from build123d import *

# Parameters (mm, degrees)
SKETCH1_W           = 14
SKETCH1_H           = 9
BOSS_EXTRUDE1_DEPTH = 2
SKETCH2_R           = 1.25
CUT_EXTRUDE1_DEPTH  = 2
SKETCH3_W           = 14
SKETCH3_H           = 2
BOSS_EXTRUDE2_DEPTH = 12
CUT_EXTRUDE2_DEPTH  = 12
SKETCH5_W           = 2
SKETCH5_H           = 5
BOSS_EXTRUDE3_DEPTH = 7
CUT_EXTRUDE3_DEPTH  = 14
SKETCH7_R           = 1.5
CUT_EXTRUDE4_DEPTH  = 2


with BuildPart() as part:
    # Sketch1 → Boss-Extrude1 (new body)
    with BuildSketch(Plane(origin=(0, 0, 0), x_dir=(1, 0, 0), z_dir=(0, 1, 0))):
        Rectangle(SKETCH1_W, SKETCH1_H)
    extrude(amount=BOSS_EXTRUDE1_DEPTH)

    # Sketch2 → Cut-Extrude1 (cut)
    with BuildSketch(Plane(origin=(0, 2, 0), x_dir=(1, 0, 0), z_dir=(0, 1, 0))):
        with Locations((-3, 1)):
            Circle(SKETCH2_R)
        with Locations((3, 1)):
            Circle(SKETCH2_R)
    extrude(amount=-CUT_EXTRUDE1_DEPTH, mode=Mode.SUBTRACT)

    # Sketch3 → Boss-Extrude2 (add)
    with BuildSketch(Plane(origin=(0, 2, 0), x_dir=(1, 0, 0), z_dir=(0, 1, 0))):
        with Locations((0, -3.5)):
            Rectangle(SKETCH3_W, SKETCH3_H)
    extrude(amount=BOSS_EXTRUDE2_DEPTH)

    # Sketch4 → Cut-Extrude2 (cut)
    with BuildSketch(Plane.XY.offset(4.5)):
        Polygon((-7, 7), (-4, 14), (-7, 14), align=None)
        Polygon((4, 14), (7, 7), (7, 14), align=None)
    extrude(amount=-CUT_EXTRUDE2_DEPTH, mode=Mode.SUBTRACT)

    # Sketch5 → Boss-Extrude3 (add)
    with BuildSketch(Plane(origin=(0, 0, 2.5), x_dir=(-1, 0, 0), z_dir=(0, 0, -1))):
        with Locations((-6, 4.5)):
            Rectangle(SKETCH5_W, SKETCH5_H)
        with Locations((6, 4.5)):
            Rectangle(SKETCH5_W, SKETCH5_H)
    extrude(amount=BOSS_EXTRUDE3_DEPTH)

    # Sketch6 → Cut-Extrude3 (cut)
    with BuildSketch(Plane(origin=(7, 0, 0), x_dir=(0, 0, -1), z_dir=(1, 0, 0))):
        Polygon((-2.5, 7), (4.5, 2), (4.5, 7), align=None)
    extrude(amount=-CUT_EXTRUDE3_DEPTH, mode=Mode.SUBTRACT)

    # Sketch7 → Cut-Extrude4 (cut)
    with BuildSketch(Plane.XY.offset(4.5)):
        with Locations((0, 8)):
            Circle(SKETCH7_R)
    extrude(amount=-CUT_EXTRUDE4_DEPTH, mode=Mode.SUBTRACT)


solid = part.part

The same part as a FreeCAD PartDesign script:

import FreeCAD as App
import Part
import Sketcher
from FreeCAD import Vector


def add_polygon(sketch, points):
    """Adds a closed chain of lines whose ends are joined by coincident constraints."""
    first, n = sketch.GeometryCount, len(points)
    for a, b in zip(points, points[1:] + points[:1]):
        sketch.addGeometry(Part.LineSegment(App.Vector(*a, 0), App.Vector(*b, 0)), False)
    for i in range(n):
        sketch.addConstraint(Sketcher.Constraint("Coincident", first + i, 2, first + (i + 1) % n, 1))

doc = App.newDocument("Part")
body = doc.addObject("PartDesign::Body", "Body")

# Sketch on XZ plane
sketch1 = body.newObject("Sketcher::SketchObject", "Sketch")
sketch1.AttachmentSupport = (doc.getObject("XZ_Plane"), [""])
sketch1.MapMode = "FlatFace"
add_polygon(sketch1, [(-7, -4.5), (-7, 4.5), (7, 4.5), (7, -4.5)])  # lines 0-3
sketch1.addConstraint([
    Sketcher.Constraint("Vertical", 0),
    Sketcher.Constraint("Horizontal", 1),
    Sketcher.Constraint("Vertical", 2),
    Sketcher.Constraint("Horizontal", 3),
    Sketcher.Constraint("Symmetric", 0, 2, 2, 2, -1, 1),
    Sketcher.Constraint("DistanceX", 1, 1, 1, 2, 14.0),
    Sketcher.Constraint("DistanceY", 0, 1, 0, 2, 9.0),
])
pad1 = body.newObject("PartDesign::Pad", "Pad")
pad1.Profile = sketch1
pad1.Length = 2
pad1.Reversed = True

# Sketch on XZ plane
sketch2 = body.newObject("Sketcher::SketchObject", "Sketch001")
sketch2.AttachmentSupport = (doc.getObject("XZ_Plane"), [""])
sketch2.MapMode = "FlatFace"
sketch2.AttachmentOffset = App.Placement(Vector(0, 0, -2), App.Rotation())
sketch2.addGeometry([
    Part.Circle(Vector(-3, -1, 0), Vector(0, 0, 1), 1.25),
    Part.Circle(Vector(3, -1, 0), Vector(0, 0, 1), 1.25),
], False)
sketch2.addConstraint([
    Sketcher.Constraint("Equal", 0, 1),
    Sketcher.Constraint("Symmetric", 0, 3, 1, 3, -2),
    Sketcher.Constraint("Diameter", 0, 2.5),
    Sketcher.Constraint("DistanceX", 0, 3, -1, 1, 3.0),
    Sketcher.Constraint("DistanceY", 0, 3, -1, 1, 1.0),
])
pocket1 = body.newObject("PartDesign::Pocket", "Pocket")
pocket1.Profile = sketch2
pocket1.Length = 2
pocket1.Reversed = True

# Sketch on XZ plane
sketch3 = body.newObject("Sketcher::SketchObject", "Sketch002")
sketch3.AttachmentSupport = (doc.getObject("XZ_Plane"), [""])
sketch3.MapMode = "FlatFace"
sketch3.AttachmentOffset = App.Placement(Vector(0, 0, -2), App.Rotation())
add_polygon(sketch3, [(-7, 2.5), (-7, 4.5), (7, 4.5), (7, 2.5)])  # lines 0-3
sketch3.addConstraint([
    Sketcher.Constraint("Vertical", 0),
    Sketcher.Constraint("Horizontal", 1),
    Sketcher.Constraint("Vertical", 2),
    Sketcher.Constraint("Horizontal", 3),
    Sketcher.Constraint("DistanceX", 1, 1, 1, 2, 14.0),
    Sketcher.Constraint("DistanceY", 0, 1, 0, 2, 2.0),
    Sketcher.Constraint("DistanceX", 0, 2, -1, 1, 7.0),
    Sketcher.Constraint("DistanceY", -1, 1, 0, 2, 4.5),
])
pad2 = body.newObject("PartDesign::Pad", "Pad001")
pad2.Profile = sketch3
pad2.Length = 12
pad2.Reversed = True

# Sketch on XY plane
sketch4 = body.newObject("Sketcher::SketchObject", "Sketch003")
sketch4.AttachmentSupport = (doc.getObject("XY_Plane"), [""])
sketch4.MapMode = "FlatFace"
sketch4.AttachmentOffset = App.Placement(Vector(0, 0, 4.5), App.Rotation())
add_polygon(sketch4, [(-7, 7), (-4, 14), (-7, 14)])  # lines 0-2
add_polygon(sketch4, [(4, 14), (7, 7), (7, 14)])  # lines 3-5
sketch4.addConstraint([
    Sketcher.Constraint("Horizontal", 1),
    Sketcher.Constraint("Vertical", 2),
    Sketcher.Constraint("Vertical", 4),
    Sketcher.Constraint("Horizontal", 5),
    Sketcher.Constraint("Symmetric", 2, 2, 3, 2, -2),
    Sketcher.Constraint("Symmetric", 0, 2, 5, 2, -2),
    Sketcher.Constraint("DistanceX", 1, 2, 1, 1, 3.0),
    Sketcher.Constraint("DistanceY", 2, 2, 2, 1, 7.0),
    Sketcher.Constraint("DistanceX", 0, 2, -1, 1, 4.0),
    Sketcher.Constraint("DistanceY", -1, 1, 0, 2, 14.0),
])
pocket2 = body.newObject("PartDesign::Pocket", "Pocket001")
pocket2.Profile = sketch4
pocket2.Length = 12

# Sketch on XY plane
sketch5 = body.newObject("Sketcher::SketchObject", "Sketch004")
sketch5.AttachmentSupport = (doc.getObject("XY_Plane"), [""])
sketch5.MapMode = "FlatFace"
sketch5.AttachmentOffset = App.Placement(Vector(0, 0, 2.5), App.Rotation())
add_polygon(sketch5, [(7, 7), (7, 2), (5, 2), (5, 7)])  # lines 0-3
add_polygon(sketch5, [(-5, 7), (-5, 2), (-7, 2), (-7, 7)])  # lines 4-7
sketch5.addConstraint([
    Sketcher.Constraint("Vertical", 0),
    Sketcher.Constraint("Horizontal", 1),
    Sketcher.Constraint("Vertical", 2),
    Sketcher.Constraint("Horizontal", 3),
    Sketcher.Constraint("Vertical", 4),
    Sketcher.Constraint("Horizontal", 5),
    Sketcher.Constraint("Vertical", 6),
    Sketcher.Constraint("Horizontal", 7),
    Sketcher.Constraint("Symmetric", 1, 2, 4, 2, -2),
    Sketcher.Constraint("Symmetric", 3, 2, 6, 2, -2),
    Sketcher.Constraint("DistanceX", 1, 2, 1, 1, 2.0),
    Sketcher.Constraint("DistanceY", 0, 2, 0, 1, 5.0),
    Sketcher.Constraint("DistanceX", -1, 1, 0, 2, 7.0),
    Sketcher.Constraint("DistanceY", -1, 1, 0, 2, 2.0),
])
pad3 = body.newObject("PartDesign::Pad", "Pad002")
pad3.Profile = sketch5
pad3.Length = 7
pad3.Reversed = True

# Sketch on YZ plane
sketch6 = body.newObject("Sketcher::SketchObject", "Sketch005")
sketch6.AttachmentSupport = (doc.getObject("YZ_Plane"), [""])
sketch6.MapMode = "FlatFace"
sketch6.AttachmentOffset = App.Placement(Vector(0, 0, 7), App.Rotation())
add_polygon(sketch6, [(7, 2.5), (2, -4.5), (7, -4.5)])  # lines 0-2
sketch6.addConstraint([
    Sketcher.Constraint("Horizontal", 1),
    Sketcher.Constraint("Vertical", 2),
    Sketcher.Constraint("DistanceX", 1, 1, 1, 2, 5.0),
    Sketcher.Constraint("DistanceY", 2, 1, 2, 2, 7.0),
    Sketcher.Constraint("DistanceX", -1, 1, 0, 2, 2.0),
    Sketcher.Constraint("DistanceY", 0, 2, -1, 1, 4.5),
])
pocket3 = body.newObject("PartDesign::Pocket", "Pocket002")
pocket3.Profile = sketch6
pocket3.Length = 14

# Sketch on XY plane
sketch7 = body.newObject("Sketcher::SketchObject", "Sketch006")
sketch7.AttachmentSupport = (doc.getObject("XY_Plane"), [""])
sketch7.MapMode = "FlatFace"
sketch7.AttachmentOffset = App.Placement(Vector(0, 0, 4.5), App.Rotation())
sketch7.addGeometry(Part.Circle(Vector(0, 8, 0), Vector(0, 0, 1), 1.5), False)
sketch7.addConstraint([
    Sketcher.Constraint("PointOnObject", 0, 3, -2),
    Sketcher.Constraint("Diameter", 0, 3.0),
    Sketcher.Constraint("DistanceY", -1, 1, 0, 3, 8.0),
])
pocket4 = body.newObject("PartDesign::Pocket", "Pocket003")
pocket4.Profile = sketch7
pocket4.Length = 2

doc.recompute()
